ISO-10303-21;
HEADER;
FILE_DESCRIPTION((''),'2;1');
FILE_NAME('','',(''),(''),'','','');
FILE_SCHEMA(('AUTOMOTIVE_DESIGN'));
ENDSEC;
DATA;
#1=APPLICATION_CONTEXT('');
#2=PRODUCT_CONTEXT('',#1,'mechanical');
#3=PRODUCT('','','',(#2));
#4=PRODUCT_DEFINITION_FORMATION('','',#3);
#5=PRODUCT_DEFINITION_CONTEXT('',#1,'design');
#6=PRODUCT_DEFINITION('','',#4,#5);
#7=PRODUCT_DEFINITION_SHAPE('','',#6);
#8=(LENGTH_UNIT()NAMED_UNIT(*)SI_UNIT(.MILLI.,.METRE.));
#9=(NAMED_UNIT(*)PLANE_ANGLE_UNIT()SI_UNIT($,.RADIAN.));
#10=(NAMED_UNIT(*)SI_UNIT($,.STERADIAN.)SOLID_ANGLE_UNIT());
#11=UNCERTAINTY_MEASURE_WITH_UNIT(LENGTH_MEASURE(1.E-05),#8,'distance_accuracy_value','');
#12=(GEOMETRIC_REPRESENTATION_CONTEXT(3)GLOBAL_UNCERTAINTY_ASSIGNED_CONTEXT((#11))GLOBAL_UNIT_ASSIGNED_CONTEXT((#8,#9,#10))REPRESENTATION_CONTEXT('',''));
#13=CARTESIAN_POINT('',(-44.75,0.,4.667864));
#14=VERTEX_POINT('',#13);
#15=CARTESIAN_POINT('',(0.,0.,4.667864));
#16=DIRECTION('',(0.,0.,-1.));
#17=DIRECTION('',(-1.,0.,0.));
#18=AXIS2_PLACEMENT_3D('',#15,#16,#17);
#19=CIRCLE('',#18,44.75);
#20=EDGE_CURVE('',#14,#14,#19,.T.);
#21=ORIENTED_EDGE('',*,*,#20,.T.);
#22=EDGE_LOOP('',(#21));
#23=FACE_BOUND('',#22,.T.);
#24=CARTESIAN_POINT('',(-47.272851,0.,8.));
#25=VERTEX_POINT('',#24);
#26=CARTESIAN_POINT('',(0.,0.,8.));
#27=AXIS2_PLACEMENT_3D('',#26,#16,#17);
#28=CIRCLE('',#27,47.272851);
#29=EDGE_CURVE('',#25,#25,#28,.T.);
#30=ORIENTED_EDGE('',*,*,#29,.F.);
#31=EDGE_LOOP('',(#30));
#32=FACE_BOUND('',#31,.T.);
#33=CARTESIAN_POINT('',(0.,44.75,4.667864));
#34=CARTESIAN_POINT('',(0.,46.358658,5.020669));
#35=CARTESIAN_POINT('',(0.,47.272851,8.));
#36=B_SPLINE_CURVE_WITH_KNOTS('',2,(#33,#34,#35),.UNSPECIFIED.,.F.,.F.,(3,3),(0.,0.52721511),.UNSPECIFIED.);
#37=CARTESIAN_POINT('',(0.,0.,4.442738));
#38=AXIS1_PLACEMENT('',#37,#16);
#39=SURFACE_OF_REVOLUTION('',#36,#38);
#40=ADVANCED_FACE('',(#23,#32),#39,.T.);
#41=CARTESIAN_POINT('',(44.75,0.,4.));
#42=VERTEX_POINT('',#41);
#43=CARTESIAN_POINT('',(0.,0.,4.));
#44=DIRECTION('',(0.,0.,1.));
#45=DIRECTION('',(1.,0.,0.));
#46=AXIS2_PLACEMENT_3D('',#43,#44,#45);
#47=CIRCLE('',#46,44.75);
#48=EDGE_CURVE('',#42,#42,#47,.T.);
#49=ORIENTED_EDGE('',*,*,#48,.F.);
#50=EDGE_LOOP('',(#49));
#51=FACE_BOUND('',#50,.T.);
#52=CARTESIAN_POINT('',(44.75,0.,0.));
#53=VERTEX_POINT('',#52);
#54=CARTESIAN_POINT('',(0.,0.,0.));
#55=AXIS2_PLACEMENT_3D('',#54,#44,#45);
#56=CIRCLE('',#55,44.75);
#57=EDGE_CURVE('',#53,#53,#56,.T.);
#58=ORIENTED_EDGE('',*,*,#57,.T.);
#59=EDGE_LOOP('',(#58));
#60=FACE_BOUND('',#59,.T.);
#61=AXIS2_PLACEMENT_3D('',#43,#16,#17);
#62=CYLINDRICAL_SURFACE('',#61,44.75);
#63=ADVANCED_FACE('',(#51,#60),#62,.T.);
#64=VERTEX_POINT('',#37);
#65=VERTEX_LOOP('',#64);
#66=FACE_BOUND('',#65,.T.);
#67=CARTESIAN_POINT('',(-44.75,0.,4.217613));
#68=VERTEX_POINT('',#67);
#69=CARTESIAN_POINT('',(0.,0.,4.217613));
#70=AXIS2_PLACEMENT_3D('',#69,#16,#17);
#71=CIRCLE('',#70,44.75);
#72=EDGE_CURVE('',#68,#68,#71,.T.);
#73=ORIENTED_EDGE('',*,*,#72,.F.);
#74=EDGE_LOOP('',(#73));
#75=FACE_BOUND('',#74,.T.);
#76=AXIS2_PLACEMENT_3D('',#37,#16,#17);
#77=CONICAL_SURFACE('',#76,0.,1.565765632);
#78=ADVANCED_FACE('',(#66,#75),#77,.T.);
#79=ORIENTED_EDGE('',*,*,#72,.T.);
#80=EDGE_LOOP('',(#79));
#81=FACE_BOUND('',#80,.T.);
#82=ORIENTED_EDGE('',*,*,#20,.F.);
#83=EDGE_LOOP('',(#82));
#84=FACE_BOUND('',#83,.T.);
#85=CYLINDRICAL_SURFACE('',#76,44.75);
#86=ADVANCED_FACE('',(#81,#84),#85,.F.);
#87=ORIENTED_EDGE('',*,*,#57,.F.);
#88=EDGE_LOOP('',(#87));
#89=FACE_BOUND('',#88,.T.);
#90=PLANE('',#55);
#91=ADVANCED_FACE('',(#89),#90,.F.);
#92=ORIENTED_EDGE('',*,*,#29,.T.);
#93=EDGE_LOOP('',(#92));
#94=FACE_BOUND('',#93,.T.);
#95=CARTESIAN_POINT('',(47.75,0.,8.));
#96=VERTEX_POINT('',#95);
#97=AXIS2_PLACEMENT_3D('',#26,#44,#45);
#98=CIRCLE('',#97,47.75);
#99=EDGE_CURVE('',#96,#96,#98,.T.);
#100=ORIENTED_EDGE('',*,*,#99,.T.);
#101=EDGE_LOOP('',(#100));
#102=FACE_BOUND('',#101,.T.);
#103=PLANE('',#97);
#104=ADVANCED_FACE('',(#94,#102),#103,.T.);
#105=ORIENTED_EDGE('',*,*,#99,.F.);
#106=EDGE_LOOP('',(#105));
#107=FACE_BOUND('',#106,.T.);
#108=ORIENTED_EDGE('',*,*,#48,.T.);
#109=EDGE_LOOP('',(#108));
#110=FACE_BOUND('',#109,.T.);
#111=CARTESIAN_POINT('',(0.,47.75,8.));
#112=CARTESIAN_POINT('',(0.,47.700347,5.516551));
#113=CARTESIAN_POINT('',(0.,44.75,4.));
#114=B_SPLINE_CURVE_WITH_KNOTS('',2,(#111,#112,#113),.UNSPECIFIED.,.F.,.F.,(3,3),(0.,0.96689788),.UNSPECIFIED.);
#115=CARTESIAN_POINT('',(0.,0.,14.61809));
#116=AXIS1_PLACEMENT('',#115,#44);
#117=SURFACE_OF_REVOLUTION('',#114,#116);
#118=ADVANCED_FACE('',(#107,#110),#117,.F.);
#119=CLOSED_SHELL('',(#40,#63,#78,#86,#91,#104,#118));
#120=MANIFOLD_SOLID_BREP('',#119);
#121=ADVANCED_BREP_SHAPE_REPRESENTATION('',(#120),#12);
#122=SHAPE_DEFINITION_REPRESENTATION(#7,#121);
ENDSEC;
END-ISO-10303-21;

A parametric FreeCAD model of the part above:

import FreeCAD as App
import Part
import Sketcher
Q = App.Units.Quantity

doc = App.newDocument("Part")
body = doc.addObject("PartDesign::Body", "Body")

# Sketch on XY plane
sketch1 = doc.addObject("Sketcher::SketchObject", "Sketch")
body.addObject(sketch1)
sketch1.AttachmentSupport = (doc.XY_Plane, [""])
sketch1.MapMode = "FlatFace"
sketch1.addGeometry(Part.Circle(App.Vector(0, 0, 0), App.Vector(0, 0, 1), 44.75), False)
sketch1.addConstraint(Sketcher.Constraint("Coincident", 0, 3, -1, 1))
sketch1.addConstraint(Sketcher.Constraint("Diameter", 0, Q("89.5 mm")))
pad1 = doc.addObject("PartDesign::Pad", "Pad")
body.addObject(pad1)
pad1.Profile = sketch1
pad1.Length = 4

# Sketch on XY plane
sketch2 = doc.addObject("Sketcher::SketchObject", "Sketch001")
body.addObject(sketch2)
sketch2.AttachmentSupport = (doc.XY_Plane, [""])
sketch2.MapMode = "FlatFace"
sketch2.AttachmentOffset = App.Placement(App.Vector(0, 0, 4), App.Rotation())
sketch2.addGeometry(Part.Circle(App.Vector(0, 0, 0), App.Vector(0, 0, 1), 47.75), False)
sketch2.addConstraint(Sketcher.Constraint("Coincident", 0, 3, -1, 1))
sketch2.addConstraint(Sketcher.Constraint("Diameter", 0, Q("95.5 mm")))
pad2 = doc.addObject("PartDesign::Pad", "Pad001")
body.addObject(pad2)
pad2.Profile = sketch2
pad2.Length = 4

# Sketch on YZ plane
sketch3 = doc.addObject("Sketcher::SketchObject", "Sketch002")
body.addObject(sketch3)
sketch3.AttachmentSupport = (doc.YZ_Plane, [""])
sketch3.MapMode = "FlatFace"
sketch3.addGeometry(Part.LineSegment(App.Vector(44.75, 4, 0), App.Vector(47.75, 4, 0)), False)
sketch3.addGeometry(Part.LineSegment(App.Vector(47.75, 4, 0), App.Vector(47.75, 8, 0)), False)
sketch3.addGeometry(Part.BSplineCurve([App.Vector(44.75, 4, 0), App.Vector(47.700347, 5.516551, 0), App.Vector(47.75, 8, 0)], [3, 3], [0, 0.96689788], False, 2, [1, 1, 1], False), False)
sketch3.addConstraint(Sketcher.Constraint("Block", 2))
sketch3.addConstraint(Sketcher.Constraint("Coincident", 0, 2, 1, 1))
sketch3.addConstraint(Sketcher.Constraint("Coincident", 1, 2, 2, 2))
sketch3.addConstraint(Sketcher.Constraint("Coincident", 2, 1, 0, 1))
sketch3.addConstraint(Sketcher.Constraint("Horizontal", 0))
sketch3.addConstraint(Sketcher.Constraint("Vertical", 1))
groove = doc.addObject("PartDesign::Groove", "Groove")
body.addObject(groove)
groove.Profile = sketch3
groove.ReferenceAxis = (sketch3, ["V_Axis"])
groove.Angle = 360

# Sketch on YZ plane
sketch4 = doc.addObject("Sketcher::SketchObject", "Sketch003")
body.addObject(sketch4)
sketch4.AttachmentSupport = (doc.YZ_Plane, [""])
sketch4.MapMode = "FlatFace"
sketch4.addGeometry(Part.LineSegment(App.Vector(44.75, 4.217613, 0), App.Vector(44.75, 4.667864, 0)), False)
sketch4.addGeometry(Part.BSplineCurve([App.Vector(47.272851, 8, 0), App.Vector(46.358658, 5.020669, 0), App.Vector(44.75, 4.667864, 0)], [3, 3], [0, 0.52721511], False, 2, [1, 1, 1], False), False)
sketch4.addGeometry(Part.LineSegment(App.Vector(47.272851, 8, 0), App.Vector(0, 8, 0)), False)
sketch4.addGeometry(Part.LineSegment(App.Vector(0, 8, 0), App.Vector(0, 4.442738, 0)), False)
sketch4.addGeometry(Part.LineSegment(App.Vector(0, 4.442738, 0), App.Vector(44.75, 4.217613, 0)), False)
sketch4.addConstraint(Sketcher.Constraint("Block", 1))
sketch4.addConstraint(Sketcher.Constraint("Coincident", 0, 2, 1, 2))
sketch4.addConstraint(Sketcher.Constraint("Coincident", 1, 1, 2, 1))
sketch4.addConstraint(Sketcher.Constraint("Coincident", 2, 2, 3, 1))
sketch4.addConstraint(Sketcher.Constraint("Coincident", 3, 2, 4, 1))
sketch4.addConstraint(Sketcher.Constraint("Coincident", 4, 2, 0, 1))
sketch4.addConstraint(Sketcher.Constraint("Vertical", 0))
sketch4.addConstraint(Sketcher.Constraint("Horizontal", 2))
sketch4.addConstraint(Sketcher.Constraint("Vertical", 3))
sketch4.addConstraint(Sketcher.Constraint("PointOnObject", 2, 2, -2))
sketch4.addConstraint(Sketcher.Constraint("DistanceY", 0, 1, 0, 2, Q("0.450251 mm")))
sketch4.addConstraint(Sketcher.Constraint("DistanceY", 3, 2, 3, 1, Q("3.557262 mm")))
groove2 = doc.addObject("PartDesign::Groove", "Groove001")
body.addObject(groove2)
groove2.Profile = sketch4
groove2.ReferenceAxis = (sketch4, ["V_Axis"])
groove2.Angle = 360

doc.recompute()
